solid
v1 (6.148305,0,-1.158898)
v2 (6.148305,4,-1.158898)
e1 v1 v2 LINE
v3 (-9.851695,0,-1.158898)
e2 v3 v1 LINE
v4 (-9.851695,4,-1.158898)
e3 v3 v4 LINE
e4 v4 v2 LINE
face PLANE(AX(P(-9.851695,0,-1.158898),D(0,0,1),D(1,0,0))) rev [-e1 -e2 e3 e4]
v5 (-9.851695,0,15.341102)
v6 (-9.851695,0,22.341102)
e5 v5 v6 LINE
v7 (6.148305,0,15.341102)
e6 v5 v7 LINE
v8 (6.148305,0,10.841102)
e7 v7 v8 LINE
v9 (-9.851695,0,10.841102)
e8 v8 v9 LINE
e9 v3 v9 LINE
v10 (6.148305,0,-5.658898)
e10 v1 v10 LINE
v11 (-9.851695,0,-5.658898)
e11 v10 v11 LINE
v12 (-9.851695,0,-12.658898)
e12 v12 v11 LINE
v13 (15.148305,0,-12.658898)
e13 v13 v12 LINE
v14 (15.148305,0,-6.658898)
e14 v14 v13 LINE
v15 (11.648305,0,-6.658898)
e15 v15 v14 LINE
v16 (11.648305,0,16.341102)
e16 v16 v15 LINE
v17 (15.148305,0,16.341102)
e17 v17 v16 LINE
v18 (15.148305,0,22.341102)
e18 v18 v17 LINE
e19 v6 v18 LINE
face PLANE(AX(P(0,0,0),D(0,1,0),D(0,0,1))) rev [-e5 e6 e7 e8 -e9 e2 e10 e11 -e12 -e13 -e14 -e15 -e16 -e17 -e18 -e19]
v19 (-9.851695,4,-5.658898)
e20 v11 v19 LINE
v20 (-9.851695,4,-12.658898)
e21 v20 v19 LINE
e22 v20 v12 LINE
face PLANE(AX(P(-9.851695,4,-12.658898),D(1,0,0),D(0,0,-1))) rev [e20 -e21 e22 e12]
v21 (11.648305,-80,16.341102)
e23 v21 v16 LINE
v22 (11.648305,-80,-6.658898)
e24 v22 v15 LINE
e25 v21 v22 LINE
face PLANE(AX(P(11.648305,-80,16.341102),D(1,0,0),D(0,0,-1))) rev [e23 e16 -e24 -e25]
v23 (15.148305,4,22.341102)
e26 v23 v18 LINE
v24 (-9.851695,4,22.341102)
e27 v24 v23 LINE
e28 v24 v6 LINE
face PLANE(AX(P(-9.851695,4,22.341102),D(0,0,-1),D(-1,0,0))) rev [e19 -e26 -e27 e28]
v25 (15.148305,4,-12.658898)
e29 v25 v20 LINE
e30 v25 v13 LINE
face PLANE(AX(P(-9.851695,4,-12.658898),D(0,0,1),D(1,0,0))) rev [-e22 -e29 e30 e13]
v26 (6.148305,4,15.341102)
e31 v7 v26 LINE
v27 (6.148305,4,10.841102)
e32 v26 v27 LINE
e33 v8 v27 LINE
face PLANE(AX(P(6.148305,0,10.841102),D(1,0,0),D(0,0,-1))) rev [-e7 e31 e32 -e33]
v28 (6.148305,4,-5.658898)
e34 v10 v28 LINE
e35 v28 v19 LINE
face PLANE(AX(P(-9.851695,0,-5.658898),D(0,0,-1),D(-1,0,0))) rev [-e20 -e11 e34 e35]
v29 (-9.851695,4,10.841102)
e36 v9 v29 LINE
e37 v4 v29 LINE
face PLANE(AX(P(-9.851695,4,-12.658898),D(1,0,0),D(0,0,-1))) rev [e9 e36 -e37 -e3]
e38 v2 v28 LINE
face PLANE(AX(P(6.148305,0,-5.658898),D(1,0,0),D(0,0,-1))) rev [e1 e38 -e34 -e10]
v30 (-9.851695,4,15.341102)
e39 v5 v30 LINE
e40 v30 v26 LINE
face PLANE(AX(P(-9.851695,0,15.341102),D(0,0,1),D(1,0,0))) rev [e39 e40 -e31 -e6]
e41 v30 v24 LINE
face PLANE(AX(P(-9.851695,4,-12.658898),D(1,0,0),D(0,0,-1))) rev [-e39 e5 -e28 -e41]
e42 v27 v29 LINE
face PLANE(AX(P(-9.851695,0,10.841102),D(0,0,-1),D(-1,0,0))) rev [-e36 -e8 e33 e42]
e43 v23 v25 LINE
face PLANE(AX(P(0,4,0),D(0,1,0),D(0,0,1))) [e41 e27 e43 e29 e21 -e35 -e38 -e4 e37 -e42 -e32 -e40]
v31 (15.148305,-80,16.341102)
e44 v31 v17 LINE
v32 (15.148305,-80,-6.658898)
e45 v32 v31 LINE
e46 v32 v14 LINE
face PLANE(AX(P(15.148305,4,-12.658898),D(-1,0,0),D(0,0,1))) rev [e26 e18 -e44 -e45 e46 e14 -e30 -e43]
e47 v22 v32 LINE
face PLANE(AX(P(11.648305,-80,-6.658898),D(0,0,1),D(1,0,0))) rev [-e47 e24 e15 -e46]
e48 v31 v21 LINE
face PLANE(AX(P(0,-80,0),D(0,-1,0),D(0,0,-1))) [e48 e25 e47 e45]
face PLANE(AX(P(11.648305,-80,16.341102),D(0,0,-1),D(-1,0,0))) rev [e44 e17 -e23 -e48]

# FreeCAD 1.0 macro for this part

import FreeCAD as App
import Part
import Sketcher

V = App.Vector

doc = App.newDocument("Part")
body = doc.addObject("PartDesign::Body", "Body")

# Sketch on XZ plane
sketch1 = doc.addObject("Sketcher::SketchObject", "Sketch")
body.addObject(sketch1)
sketch1.AttachmentSupport = (doc.XZ_Plane, [""])
sketch1.MapMode = "FlatFace"
sketch1.addGeometry([
    Part.LineSegment(V(-10, -13, 0), V(-10, 22, 0)),
    Part.LineSegment(V(-10, 22, 0), V(15, 22, 0)),
    Part.LineSegment(V(15, 22, 0), V(15, -13, 0)),
    Part.LineSegment(V(15, -13, 0), V(-10, -13, 0)),
], False)
sketch1.addConstraint([
    Sketcher.Constraint("Coincident", 0, 2, 1, 1),
    Sketcher.Constraint("Coincident", 1, 2, 2, 1),
    Sketcher.Constraint("Coincident", 2, 2, 3, 1),
    Sketcher.Constraint("Coincident", 3, 2, 0, 1),
    Sketcher.Constraint("Vertical", 0),
    Sketcher.Constraint("Horizontal", 1),
    Sketcher.Constraint("Vertical", 2),
    Sketcher.Constraint("Horizontal", 3),
    Sketcher.Constraint("DistanceX", 1, 1, 1, 2, 25.0),
    Sketcher.Constraint("DistanceY", 0, 1, 0, 2, 35.0),
    Sketcher.Constraint("DistanceY", -1, 1, 0, 2, 22.341102),
    Sketcher.Constraint("DistanceX", 0, 2, -1, 1, 9.851695),
])
pad1 = doc.addObject("PartDesign::Pad", "Pad")
body.addObject(pad1)
pad1.Profile = sketch1
pad1.Length = 4
pad1.Reversed = True

# Sketch on XZ plane
sketch2 = doc.addObject("Sketcher::SketchObject", "Sketch001")
body.addObject(sketch2)
sketch2.AttachmentSupport = (doc.XZ_Plane, [""])
sketch2.MapMode = "FlatFace"
sketch2.AttachmentOffset = App.Placement(V(0, 0, -4), App.Rotation())
sketch2.addGeometry([
    Part.LineSegment(V(-9.9, 10.8, 0), V(-9.9, 15.3, 0)),  # 0
    Part.LineSegment(V(-9.9, 15.3, 0), V(6.1, 15.3, 0)),  # 1
    Part.LineSegment(V(6.1, 15.3, 0), V(6.1, 10.8, 0)),  # 2
    Part.LineSegment(V(6.1, 10.8, 0), V(-9.9, 10.8, 0)),  # 3
    Part.LineSegment(V(-9.9, -5.7, 0), V(-9.9, -1.2, 0)),  # 4
    Part.LineSegment(V(-9.9, -1.2, 0), V(6.1, -1.2, 0)),  # 5
    Part.LineSegment(V(6.1, -1.2, 0), V(6.1, -5.7, 0)),  # 6
    Part.LineSegment(V(6.1, -5.7, 0), V(-9.9, -5.7, 0)),  # 7
], False)
sketch2.addConstraint([
    Sketcher.Constraint("Coincident", 0, 2, 1, 1),
    Sketcher.Constraint("Coincident", 1, 2, 2, 1),
    Sketcher.Constraint("Coincident", 2, 2, 3, 1),
    Sketcher.Constraint("Coincident", 3, 2, 0, 1),
    Sketcher.Constraint("Coincident", 4, 2, 5, 1),
    Sketcher.Constraint("Coincident", 5, 2, 6, 1),
    Sketcher.Constraint("Coincident", 6, 2, 7, 1),
    Sketcher.Constraint("Coincident", 7, 2, 4, 1),
    Sketcher.Constraint("Vertical", 0),
    Sketcher.Constraint("Horizontal", 1),
    Sketcher.Constraint("Vertical", 2),
    Sketcher.Constraint("Horizontal", 3),
    Sketcher.Constraint("Vertical", 4),
    Sketcher.Constraint("Horizontal", 5),
    Sketcher.Constraint("Vertical", 6),
    Sketcher.Constraint("Horizontal", 7),
    Sketcher.Constraint("Vertical", 3, 2, 4, 2),
    Sketcher.Constraint("Vertical", 2, 2, 5, 2),
    Sketcher.Constraint("Equal", 2, 4),
    Sketcher.Constraint("DistanceX", 1, 1, 1, 2, 16.0),
    Sketcher.Constraint("DistanceY", 0, 1, 0, 2, 4.5),
    Sketcher.Constraint("DistanceY", 4, 2, 3, 2, 12.0),
    Sketcher.Constraint("DistanceY", -1, 1, 0, 2, 15.341102),
    Sketcher.Constraint("DistanceX", 0, 2, -1, 1, 9.851695),
])
pocket1 = doc.addObject("PartDesign::Pocket", "Pocket")
body.addObject(pocket1)
pocket1.Profile = sketch2
pocket1.Length = 4
pocket1.Reversed = True

# Sketch on XZ plane
sketch3 = doc.addObject("Sketcher::SketchObject", "Sketch002")
body.addObject(sketch3)
sketch3.AttachmentSupport = (doc.XZ_Plane, [""])
sketch3.MapMode = "FlatFace"
sketch3.addGeometry([
    Part.LineSegment(V(15.1, -6.7, 0), V(15.1, 16.3, 0)),
    Part.LineSegment(V(15.1, 16.3, 0), V(11.6, 16.3, 0)),
    Part.LineSegment(V(11.6, 16.3, 0), V(11.6, -6.7, 0)),
    Part.LineSegment(V(11.6, -6.7, 0), V(15.1, -6.7, 0)),
], False)
sketch3.addConstraint([
    Sketcher.Constraint("Coincident", 0, 2, 1, 1),
    Sketcher.Constraint("Coincident", 1, 2, 2, 1),
    Sketcher.Constraint("Coincident", 2, 2, 3, 1),
    Sketcher.Constraint("Coincident", 3, 2, 0, 1),
    Sketcher.Constraint("Vertical", 0),
    Sketcher.Constraint("Horizontal", 1),
    Sketcher.Constraint("Vertical", 2),
    Sketcher.Constraint("Horizontal", 3),
    Sketcher.Constraint("DistanceY", 0, 1, 0, 2, 23.0),
    Sketcher.Constraint("DistanceX", 1, 2, 1, 1, 3.5),
    Sketcher.Constraint("DistanceY", -1, 1, 0, 2, 16.341102),
    Sketcher.Constraint("DistanceX", -1, 1, 0, 2, 15.148305),
])
pad2 = doc.addObject("PartDesign::Pad", "Pad001")
body.addObject(pad2)
pad2.Profile = sketch3
pad2.Length = 80

doc.recompute()
